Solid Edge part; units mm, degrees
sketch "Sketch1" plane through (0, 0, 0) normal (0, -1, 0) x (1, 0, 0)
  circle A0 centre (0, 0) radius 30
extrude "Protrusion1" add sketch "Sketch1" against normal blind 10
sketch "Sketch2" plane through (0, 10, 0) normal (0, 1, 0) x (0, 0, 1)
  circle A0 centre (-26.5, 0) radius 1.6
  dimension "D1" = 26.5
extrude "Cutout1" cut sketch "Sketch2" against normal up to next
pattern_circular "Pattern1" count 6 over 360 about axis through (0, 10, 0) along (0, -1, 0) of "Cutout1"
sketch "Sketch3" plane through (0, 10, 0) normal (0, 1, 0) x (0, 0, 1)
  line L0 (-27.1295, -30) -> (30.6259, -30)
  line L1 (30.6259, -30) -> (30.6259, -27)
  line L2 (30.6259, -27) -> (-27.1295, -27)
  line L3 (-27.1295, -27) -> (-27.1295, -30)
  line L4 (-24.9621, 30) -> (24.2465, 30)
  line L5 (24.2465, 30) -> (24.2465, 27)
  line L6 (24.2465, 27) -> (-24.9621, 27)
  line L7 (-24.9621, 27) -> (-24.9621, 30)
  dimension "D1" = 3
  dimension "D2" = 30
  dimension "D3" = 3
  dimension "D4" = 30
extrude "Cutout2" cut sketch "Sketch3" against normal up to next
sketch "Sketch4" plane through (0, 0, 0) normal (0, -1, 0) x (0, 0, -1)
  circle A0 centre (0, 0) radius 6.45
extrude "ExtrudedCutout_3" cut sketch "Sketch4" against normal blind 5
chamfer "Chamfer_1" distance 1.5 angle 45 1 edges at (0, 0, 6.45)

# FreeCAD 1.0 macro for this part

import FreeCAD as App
import Part
import Sketcher
from FreeCAD import Vector
Q = App.Units.Quantity


def edges_at(feature, points):
    """Names of the edges that pass closest to the given points."""
    edges = feature.Shape.Edges
    near = lambda p: min(range(len(edges)), key=lambda i: edges[i].distToShape(Part.Vertex(*p))[0])
    return sorted({f"Edge{near(p) + 1}" for p in points})


def add_polygon(sketch, points):
    """Adds a closed chain of lines whose ends are joined by coincident constraints."""
    first, n = sketch.GeometryCount, len(points)
    for a, b in zip(points, points[1:] + points[:1]):
        sketch.addGeometry(Part.LineSegment(App.Vector(*a, 0), App.Vector(*b, 0)), False)
    for i in range(n):
        sketch.addConstraint(Sketcher.Constraint("Coincident", first + i, 2, first + (i + 1) % n, 1))

doc = App.newDocument("Part")
body = doc.addObject("PartDesign::Body", "Body")

# Sketch on XZ plane
sketch1 = body.newObject("Sketcher::SketchObject", "Sketch")
sketch1.AttachmentSupport = (doc.getObject("XZ_Plane"), [""])
sketch1.MapMode = "FlatFace"
sketch1.addGeometry(Part.Circle(Vector(0, 0, 0), Vector(0, 0, 1), 30), False)
sketch1.addConstraint([
    Sketcher.Constraint("Coincident", 0, 3, -1, 1),
    Sketcher.Constraint("Diameter", 0, Q("60 mm")),
])
pad1 = body.newObject("PartDesign::Pad", "Pad")
pad1.Profile = sketch1
pad1.Length = 10
pad1.Reversed = True

# Sketch on XZ plane
sketch2 = body.newObject("Sketcher::SketchObject", "Sketch001")
sketch2.AttachmentSupport = (doc.getObject("XZ_Plane"), [""])
sketch2.MapMode = "FlatFace"
sketch2.AttachmentOffset = App.Placement(Vector(0, 0, -10), App.Rotation())
sketch2.addGeometry(Part.Circle(Vector(0, -26.5, 0), Vector(0, 0, 1), 1.6), False)
sketch2.addConstraint([
    Sketcher.Constraint("PointOnObject", 0, 3, -2),
    Sketcher.Constraint("Diameter", 0, Q("3.2 mm")),
    Sketcher.Constraint("DistanceY", 0, 3, -1, 1, Q("26.5 mm")),
])
pocket1 = body.newObject("PartDesign::Pocket", "Pocket")
pocket1.Profile = sketch2
pocket1.Type = "UpToFirst"
pocket1.Reversed = True
doc.recompute()

polarpattern = body.newObject("PartDesign::PolarPattern", "PolarPattern")
polarpattern.Originals = [pocket1]
polarpattern.Axis = (doc.getObject("Y_Axis"), [""])
polarpattern.Angle = 360
polarpattern.Occurrences = 6
body.Tip = polarpattern

# Sketch on XZ plane
sketch3 = body.newObject("Sketcher::SketchObject", "Sketch002")
sketch3.AttachmentSupport = (doc.getObject("XZ_Plane"), [""])
sketch3.MapMode = "FlatFace"
sketch3.AttachmentOffset = App.Placement(Vector(0, 0, -10), App.Rotation())
add_polygon(sketch3, [(-27, -27.1), (-30, -27.1), (-30, 30.6), (-27, 30.6)])  # lines 0-3
add_polygon(sketch3, [(30, 24.2), (30, -25), (27, -25), (27, 24.2)])  # lines 4-7
sketch3.addConstraint([
    Sketcher.Constraint("Horizontal", 0),
    Sketcher.Constraint("Vertical", 1),
    Sketcher.Constraint("Horizontal", 2),
    Sketcher.Constraint("Vertical", 3),
    Sketcher.Constraint("Vertical", 4),
    Sketcher.Constraint("Horizontal", 5),
    Sketcher.Constraint("Vertical", 6),
    Sketcher.Constraint("Horizontal", 7),
    Sketcher.Constraint("Equal", 2, 5),
    Sketcher.Constraint("DistanceX", 0, 2, 0, 1, Q("3 mm")),
    Sketcher.Constraint("DistanceY", -1, 1, 1, 2, Q("30.626 mm")),
    Sketcher.Constraint("DistanceX", 0, 2, -1, 1, Q("30 mm")),
    Sketcher.Constraint("DistanceX", -1, 1, 4, 2, Q("30 mm")),
    Sketcher.Constraint("DistanceY", 1, 1, 1, 2, Q("57.7554 mm")),
    Sketcher.Constraint("DistanceY", 4, 2, 4, 1, Q("49.2086 mm")),
    Sketcher.Constraint("DistanceY", 4, 2, -1, 1, Q("24.962 mm")),
])
pocket2 = body.newObject("PartDesign::Pocket", "Pocket001")
pocket2.Profile = sketch3
pocket2.Type = "UpToFirst"
pocket2.Reversed = True

# Sketch on XZ plane
sketch4 = body.newObject("Sketcher::SketchObject", "Sketch003")
sketch4.AttachmentSupport = (doc.getObject("XZ_Plane"), [""])
sketch4.MapMode = "FlatFace"
sketch4.addGeometry(Part.Circle(Vector(0, 0, 0), Vector(0, 0, 1), 6), False)
sketch4.addConstraint([
    Sketcher.Constraint("Coincident", 0, 3, -1, 1),
    Sketcher.Constraint("Diameter", 0, Q("12.9 mm")),
])
pocket3 = body.newObject("PartDesign::Pocket", "Pocket002")
pocket3.Profile = sketch4
pocket3.Length = 5
doc.recompute()

chamfer = body.newObject("PartDesign::Chamfer", "Chamfer")
chamfer.Base = (pocket3, edges_at(pocket3, [(0, 0, 6.45)]))
chamfer.Size = 1.5

doc.recompute()
